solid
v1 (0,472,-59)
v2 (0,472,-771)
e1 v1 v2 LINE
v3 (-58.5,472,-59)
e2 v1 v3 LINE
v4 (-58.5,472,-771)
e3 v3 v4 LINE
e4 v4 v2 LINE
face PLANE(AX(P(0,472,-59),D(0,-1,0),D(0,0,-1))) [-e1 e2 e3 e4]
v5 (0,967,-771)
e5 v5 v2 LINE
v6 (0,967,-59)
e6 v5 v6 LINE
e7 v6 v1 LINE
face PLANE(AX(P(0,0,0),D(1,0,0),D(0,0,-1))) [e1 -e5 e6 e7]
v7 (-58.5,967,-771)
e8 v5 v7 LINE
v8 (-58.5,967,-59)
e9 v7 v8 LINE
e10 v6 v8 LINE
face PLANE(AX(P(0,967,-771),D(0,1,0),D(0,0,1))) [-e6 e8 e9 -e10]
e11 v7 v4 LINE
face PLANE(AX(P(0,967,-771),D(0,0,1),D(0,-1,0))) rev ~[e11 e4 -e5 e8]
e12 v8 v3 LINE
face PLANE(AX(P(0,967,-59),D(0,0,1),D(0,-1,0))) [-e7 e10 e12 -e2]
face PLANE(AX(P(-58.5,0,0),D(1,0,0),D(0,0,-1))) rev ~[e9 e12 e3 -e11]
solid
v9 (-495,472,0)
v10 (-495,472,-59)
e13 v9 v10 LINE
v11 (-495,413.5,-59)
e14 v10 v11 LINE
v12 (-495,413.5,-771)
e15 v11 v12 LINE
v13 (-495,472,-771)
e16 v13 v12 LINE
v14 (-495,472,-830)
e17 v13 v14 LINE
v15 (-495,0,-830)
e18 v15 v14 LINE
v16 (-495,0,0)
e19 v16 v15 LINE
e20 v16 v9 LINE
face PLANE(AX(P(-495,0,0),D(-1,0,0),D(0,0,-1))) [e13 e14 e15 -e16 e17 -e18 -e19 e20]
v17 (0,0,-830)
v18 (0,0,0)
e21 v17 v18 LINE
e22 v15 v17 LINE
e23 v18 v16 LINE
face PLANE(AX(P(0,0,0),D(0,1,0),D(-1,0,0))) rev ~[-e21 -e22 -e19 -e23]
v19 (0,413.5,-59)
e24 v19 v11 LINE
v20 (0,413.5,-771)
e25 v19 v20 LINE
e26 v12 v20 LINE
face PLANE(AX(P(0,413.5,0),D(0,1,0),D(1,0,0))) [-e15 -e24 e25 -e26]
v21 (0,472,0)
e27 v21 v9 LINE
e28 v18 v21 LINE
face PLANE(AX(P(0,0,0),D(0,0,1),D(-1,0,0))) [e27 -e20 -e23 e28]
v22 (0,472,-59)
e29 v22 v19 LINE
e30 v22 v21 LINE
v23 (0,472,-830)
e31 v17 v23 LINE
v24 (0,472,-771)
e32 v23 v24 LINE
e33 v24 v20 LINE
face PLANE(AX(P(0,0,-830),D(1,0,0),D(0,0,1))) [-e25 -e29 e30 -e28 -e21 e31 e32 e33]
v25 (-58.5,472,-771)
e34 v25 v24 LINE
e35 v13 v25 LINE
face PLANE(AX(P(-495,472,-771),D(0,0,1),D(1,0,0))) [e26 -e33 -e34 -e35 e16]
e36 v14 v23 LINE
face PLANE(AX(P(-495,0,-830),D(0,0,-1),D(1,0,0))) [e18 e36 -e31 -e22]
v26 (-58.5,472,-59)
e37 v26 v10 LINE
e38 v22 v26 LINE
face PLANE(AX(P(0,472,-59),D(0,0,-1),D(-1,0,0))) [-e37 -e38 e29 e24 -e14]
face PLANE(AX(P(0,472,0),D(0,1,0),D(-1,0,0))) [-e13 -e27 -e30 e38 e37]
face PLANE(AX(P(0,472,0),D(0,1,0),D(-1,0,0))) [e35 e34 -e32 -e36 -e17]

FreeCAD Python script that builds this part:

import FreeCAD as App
import Part
import Sketcher

V = App.Vector


def add_polygon(sketch, points):
    """Adds a closed chain of lines whose ends are joined by coincident constraints."""
    first, n = sketch.GeometryCount, len(points)
    for a, b in zip(points, points[1:] + points[:1]):
        sketch.addGeometry(Part.LineSegment(App.Vector(*a, 0), App.Vector(*b, 0)), False)
    for i in range(n):
        sketch.addConstraint(Sketcher.Constraint("Coincident", first + i, 2, first + (i + 1) % n, 1))

doc = App.newDocument("Part")
body = doc.addObject("PartDesign::Body", "Body")
body.AllowCompound = True

sketch1 = doc.addObject("Sketcher::SketchObject", "Sketch")
body.addObject(sketch1)
sketch1.AttachmentSupport = (doc.XZ_Plane, [""])
sketch1.MapMode = "FlatFace"
add_polygon(sketch1, [(-495, 0), (0, 0), (0, -830), (-495, -830)])
sketch1.addConstraint(Sketcher.Constraint("Horizontal", 0))
sketch1.addConstraint(Sketcher.Constraint("Vertical", 1))
sketch1.addConstraint(Sketcher.Constraint("Horizontal", 2))
sketch1.addConstraint(Sketcher.Constraint("Vertical", 3))
sketch1.addConstraint(Sketcher.Constraint("Coincident", 0, 2, -1, 1))
sketch1.addConstraint(Sketcher.Constraint("DistanceX", 0, 1, 0, 2, 495.0))
sketch1.addConstraint(Sketcher.Constraint("DistanceY", 1, 2, 1, 1, 830.0))
pad1 = doc.addObject("PartDesign::Pad", "Pad")
body.addObject(pad1)
pad1.Profile = sketch1
pad1.Length = 472
pad1.Reversed = True

sketch2 = doc.addObject("Sketcher::SketchObject", "Sketch001")
body.addObject(sketch2)
sketch2.AttachmentSupport = (doc.XZ_Plane, [""])
sketch2.MapMode = "FlatFace"
sketch2.AttachmentOffset = App.Placement(V(0, 0, -472), App.Rotation())
add_polygon(sketch2, [(-495, -771), (-495, -59), (0, -59), (0, -771)])
sketch2.addConstraint(Sketcher.Constraint("Vertical", 0))
sketch2.addConstraint(Sketcher.Constraint("Horizontal", 1))
sketch2.addConstraint(Sketcher.Constraint("Vertical", 2))
sketch2.addConstraint(Sketcher.Constraint("Horizontal", 3))
sketch2.addConstraint(Sketcher.Constraint("PointOnObject", 1, 2, -2))
sketch2.addConstraint(Sketcher.Constraint("DistanceY", 0, 2, -1, 1, 59.0))
sketch2.addConstraint(Sketcher.Constraint("DistanceX", 1, 1, 1, 2, 495.0))
sketch2.addConstraint(Sketcher.Constraint("DistanceY", 0, 1, 0, 2, 712.0))
pocket1 = doc.addObject("PartDesign::Pocket", "Pocket")
body.addObject(pocket1)
pocket1.Profile = sketch2
pocket1.Length = 58.5
pocket1.Reversed = True

sketch3 = doc.addObject("Sketcher::SketchObject", "Sketch002")
body.addObject(sketch3)
sketch3.AttachmentSupport = (doc.YZ_Plane, [""])
sketch3.MapMode = "FlatFace"
add_polygon(sketch3, [(967, -59), (472, -59), (472, -771), (967, -771)])
sketch3.addConstraint(Sketcher.Constraint("Horizontal", 0))
sketch3.addConstraint(Sketcher.Constraint("Vertical", 1))
sketch3.addConstraint(Sketcher.Constraint("Horizontal", 2))
sketch3.addConstraint(Sketcher.Constraint("Vertical", 3))
sketch3.addConstraint(Sketcher.Constraint("DistanceX", 0, 2, 0, 1, 495.0))
sketch3.addConstraint(Sketcher.Constraint("DistanceY", 1, 2, 1, 1, 712.0))
sketch3.addConstraint(Sketcher.Constraint("DistanceX", -1, 1, 0, 2, 472.0))
sketch3.addConstraint(Sketcher.Constraint("DistanceY", 0, 2, -1, 1, 59.0))
pad2 = doc.addObject("PartDesign::Pad", "Pad001")
body.addObject(pad2)
pad2.Profile = sketch3
pad2.Length = 58.5
pad2.Reversed = True

doc.recompute()
